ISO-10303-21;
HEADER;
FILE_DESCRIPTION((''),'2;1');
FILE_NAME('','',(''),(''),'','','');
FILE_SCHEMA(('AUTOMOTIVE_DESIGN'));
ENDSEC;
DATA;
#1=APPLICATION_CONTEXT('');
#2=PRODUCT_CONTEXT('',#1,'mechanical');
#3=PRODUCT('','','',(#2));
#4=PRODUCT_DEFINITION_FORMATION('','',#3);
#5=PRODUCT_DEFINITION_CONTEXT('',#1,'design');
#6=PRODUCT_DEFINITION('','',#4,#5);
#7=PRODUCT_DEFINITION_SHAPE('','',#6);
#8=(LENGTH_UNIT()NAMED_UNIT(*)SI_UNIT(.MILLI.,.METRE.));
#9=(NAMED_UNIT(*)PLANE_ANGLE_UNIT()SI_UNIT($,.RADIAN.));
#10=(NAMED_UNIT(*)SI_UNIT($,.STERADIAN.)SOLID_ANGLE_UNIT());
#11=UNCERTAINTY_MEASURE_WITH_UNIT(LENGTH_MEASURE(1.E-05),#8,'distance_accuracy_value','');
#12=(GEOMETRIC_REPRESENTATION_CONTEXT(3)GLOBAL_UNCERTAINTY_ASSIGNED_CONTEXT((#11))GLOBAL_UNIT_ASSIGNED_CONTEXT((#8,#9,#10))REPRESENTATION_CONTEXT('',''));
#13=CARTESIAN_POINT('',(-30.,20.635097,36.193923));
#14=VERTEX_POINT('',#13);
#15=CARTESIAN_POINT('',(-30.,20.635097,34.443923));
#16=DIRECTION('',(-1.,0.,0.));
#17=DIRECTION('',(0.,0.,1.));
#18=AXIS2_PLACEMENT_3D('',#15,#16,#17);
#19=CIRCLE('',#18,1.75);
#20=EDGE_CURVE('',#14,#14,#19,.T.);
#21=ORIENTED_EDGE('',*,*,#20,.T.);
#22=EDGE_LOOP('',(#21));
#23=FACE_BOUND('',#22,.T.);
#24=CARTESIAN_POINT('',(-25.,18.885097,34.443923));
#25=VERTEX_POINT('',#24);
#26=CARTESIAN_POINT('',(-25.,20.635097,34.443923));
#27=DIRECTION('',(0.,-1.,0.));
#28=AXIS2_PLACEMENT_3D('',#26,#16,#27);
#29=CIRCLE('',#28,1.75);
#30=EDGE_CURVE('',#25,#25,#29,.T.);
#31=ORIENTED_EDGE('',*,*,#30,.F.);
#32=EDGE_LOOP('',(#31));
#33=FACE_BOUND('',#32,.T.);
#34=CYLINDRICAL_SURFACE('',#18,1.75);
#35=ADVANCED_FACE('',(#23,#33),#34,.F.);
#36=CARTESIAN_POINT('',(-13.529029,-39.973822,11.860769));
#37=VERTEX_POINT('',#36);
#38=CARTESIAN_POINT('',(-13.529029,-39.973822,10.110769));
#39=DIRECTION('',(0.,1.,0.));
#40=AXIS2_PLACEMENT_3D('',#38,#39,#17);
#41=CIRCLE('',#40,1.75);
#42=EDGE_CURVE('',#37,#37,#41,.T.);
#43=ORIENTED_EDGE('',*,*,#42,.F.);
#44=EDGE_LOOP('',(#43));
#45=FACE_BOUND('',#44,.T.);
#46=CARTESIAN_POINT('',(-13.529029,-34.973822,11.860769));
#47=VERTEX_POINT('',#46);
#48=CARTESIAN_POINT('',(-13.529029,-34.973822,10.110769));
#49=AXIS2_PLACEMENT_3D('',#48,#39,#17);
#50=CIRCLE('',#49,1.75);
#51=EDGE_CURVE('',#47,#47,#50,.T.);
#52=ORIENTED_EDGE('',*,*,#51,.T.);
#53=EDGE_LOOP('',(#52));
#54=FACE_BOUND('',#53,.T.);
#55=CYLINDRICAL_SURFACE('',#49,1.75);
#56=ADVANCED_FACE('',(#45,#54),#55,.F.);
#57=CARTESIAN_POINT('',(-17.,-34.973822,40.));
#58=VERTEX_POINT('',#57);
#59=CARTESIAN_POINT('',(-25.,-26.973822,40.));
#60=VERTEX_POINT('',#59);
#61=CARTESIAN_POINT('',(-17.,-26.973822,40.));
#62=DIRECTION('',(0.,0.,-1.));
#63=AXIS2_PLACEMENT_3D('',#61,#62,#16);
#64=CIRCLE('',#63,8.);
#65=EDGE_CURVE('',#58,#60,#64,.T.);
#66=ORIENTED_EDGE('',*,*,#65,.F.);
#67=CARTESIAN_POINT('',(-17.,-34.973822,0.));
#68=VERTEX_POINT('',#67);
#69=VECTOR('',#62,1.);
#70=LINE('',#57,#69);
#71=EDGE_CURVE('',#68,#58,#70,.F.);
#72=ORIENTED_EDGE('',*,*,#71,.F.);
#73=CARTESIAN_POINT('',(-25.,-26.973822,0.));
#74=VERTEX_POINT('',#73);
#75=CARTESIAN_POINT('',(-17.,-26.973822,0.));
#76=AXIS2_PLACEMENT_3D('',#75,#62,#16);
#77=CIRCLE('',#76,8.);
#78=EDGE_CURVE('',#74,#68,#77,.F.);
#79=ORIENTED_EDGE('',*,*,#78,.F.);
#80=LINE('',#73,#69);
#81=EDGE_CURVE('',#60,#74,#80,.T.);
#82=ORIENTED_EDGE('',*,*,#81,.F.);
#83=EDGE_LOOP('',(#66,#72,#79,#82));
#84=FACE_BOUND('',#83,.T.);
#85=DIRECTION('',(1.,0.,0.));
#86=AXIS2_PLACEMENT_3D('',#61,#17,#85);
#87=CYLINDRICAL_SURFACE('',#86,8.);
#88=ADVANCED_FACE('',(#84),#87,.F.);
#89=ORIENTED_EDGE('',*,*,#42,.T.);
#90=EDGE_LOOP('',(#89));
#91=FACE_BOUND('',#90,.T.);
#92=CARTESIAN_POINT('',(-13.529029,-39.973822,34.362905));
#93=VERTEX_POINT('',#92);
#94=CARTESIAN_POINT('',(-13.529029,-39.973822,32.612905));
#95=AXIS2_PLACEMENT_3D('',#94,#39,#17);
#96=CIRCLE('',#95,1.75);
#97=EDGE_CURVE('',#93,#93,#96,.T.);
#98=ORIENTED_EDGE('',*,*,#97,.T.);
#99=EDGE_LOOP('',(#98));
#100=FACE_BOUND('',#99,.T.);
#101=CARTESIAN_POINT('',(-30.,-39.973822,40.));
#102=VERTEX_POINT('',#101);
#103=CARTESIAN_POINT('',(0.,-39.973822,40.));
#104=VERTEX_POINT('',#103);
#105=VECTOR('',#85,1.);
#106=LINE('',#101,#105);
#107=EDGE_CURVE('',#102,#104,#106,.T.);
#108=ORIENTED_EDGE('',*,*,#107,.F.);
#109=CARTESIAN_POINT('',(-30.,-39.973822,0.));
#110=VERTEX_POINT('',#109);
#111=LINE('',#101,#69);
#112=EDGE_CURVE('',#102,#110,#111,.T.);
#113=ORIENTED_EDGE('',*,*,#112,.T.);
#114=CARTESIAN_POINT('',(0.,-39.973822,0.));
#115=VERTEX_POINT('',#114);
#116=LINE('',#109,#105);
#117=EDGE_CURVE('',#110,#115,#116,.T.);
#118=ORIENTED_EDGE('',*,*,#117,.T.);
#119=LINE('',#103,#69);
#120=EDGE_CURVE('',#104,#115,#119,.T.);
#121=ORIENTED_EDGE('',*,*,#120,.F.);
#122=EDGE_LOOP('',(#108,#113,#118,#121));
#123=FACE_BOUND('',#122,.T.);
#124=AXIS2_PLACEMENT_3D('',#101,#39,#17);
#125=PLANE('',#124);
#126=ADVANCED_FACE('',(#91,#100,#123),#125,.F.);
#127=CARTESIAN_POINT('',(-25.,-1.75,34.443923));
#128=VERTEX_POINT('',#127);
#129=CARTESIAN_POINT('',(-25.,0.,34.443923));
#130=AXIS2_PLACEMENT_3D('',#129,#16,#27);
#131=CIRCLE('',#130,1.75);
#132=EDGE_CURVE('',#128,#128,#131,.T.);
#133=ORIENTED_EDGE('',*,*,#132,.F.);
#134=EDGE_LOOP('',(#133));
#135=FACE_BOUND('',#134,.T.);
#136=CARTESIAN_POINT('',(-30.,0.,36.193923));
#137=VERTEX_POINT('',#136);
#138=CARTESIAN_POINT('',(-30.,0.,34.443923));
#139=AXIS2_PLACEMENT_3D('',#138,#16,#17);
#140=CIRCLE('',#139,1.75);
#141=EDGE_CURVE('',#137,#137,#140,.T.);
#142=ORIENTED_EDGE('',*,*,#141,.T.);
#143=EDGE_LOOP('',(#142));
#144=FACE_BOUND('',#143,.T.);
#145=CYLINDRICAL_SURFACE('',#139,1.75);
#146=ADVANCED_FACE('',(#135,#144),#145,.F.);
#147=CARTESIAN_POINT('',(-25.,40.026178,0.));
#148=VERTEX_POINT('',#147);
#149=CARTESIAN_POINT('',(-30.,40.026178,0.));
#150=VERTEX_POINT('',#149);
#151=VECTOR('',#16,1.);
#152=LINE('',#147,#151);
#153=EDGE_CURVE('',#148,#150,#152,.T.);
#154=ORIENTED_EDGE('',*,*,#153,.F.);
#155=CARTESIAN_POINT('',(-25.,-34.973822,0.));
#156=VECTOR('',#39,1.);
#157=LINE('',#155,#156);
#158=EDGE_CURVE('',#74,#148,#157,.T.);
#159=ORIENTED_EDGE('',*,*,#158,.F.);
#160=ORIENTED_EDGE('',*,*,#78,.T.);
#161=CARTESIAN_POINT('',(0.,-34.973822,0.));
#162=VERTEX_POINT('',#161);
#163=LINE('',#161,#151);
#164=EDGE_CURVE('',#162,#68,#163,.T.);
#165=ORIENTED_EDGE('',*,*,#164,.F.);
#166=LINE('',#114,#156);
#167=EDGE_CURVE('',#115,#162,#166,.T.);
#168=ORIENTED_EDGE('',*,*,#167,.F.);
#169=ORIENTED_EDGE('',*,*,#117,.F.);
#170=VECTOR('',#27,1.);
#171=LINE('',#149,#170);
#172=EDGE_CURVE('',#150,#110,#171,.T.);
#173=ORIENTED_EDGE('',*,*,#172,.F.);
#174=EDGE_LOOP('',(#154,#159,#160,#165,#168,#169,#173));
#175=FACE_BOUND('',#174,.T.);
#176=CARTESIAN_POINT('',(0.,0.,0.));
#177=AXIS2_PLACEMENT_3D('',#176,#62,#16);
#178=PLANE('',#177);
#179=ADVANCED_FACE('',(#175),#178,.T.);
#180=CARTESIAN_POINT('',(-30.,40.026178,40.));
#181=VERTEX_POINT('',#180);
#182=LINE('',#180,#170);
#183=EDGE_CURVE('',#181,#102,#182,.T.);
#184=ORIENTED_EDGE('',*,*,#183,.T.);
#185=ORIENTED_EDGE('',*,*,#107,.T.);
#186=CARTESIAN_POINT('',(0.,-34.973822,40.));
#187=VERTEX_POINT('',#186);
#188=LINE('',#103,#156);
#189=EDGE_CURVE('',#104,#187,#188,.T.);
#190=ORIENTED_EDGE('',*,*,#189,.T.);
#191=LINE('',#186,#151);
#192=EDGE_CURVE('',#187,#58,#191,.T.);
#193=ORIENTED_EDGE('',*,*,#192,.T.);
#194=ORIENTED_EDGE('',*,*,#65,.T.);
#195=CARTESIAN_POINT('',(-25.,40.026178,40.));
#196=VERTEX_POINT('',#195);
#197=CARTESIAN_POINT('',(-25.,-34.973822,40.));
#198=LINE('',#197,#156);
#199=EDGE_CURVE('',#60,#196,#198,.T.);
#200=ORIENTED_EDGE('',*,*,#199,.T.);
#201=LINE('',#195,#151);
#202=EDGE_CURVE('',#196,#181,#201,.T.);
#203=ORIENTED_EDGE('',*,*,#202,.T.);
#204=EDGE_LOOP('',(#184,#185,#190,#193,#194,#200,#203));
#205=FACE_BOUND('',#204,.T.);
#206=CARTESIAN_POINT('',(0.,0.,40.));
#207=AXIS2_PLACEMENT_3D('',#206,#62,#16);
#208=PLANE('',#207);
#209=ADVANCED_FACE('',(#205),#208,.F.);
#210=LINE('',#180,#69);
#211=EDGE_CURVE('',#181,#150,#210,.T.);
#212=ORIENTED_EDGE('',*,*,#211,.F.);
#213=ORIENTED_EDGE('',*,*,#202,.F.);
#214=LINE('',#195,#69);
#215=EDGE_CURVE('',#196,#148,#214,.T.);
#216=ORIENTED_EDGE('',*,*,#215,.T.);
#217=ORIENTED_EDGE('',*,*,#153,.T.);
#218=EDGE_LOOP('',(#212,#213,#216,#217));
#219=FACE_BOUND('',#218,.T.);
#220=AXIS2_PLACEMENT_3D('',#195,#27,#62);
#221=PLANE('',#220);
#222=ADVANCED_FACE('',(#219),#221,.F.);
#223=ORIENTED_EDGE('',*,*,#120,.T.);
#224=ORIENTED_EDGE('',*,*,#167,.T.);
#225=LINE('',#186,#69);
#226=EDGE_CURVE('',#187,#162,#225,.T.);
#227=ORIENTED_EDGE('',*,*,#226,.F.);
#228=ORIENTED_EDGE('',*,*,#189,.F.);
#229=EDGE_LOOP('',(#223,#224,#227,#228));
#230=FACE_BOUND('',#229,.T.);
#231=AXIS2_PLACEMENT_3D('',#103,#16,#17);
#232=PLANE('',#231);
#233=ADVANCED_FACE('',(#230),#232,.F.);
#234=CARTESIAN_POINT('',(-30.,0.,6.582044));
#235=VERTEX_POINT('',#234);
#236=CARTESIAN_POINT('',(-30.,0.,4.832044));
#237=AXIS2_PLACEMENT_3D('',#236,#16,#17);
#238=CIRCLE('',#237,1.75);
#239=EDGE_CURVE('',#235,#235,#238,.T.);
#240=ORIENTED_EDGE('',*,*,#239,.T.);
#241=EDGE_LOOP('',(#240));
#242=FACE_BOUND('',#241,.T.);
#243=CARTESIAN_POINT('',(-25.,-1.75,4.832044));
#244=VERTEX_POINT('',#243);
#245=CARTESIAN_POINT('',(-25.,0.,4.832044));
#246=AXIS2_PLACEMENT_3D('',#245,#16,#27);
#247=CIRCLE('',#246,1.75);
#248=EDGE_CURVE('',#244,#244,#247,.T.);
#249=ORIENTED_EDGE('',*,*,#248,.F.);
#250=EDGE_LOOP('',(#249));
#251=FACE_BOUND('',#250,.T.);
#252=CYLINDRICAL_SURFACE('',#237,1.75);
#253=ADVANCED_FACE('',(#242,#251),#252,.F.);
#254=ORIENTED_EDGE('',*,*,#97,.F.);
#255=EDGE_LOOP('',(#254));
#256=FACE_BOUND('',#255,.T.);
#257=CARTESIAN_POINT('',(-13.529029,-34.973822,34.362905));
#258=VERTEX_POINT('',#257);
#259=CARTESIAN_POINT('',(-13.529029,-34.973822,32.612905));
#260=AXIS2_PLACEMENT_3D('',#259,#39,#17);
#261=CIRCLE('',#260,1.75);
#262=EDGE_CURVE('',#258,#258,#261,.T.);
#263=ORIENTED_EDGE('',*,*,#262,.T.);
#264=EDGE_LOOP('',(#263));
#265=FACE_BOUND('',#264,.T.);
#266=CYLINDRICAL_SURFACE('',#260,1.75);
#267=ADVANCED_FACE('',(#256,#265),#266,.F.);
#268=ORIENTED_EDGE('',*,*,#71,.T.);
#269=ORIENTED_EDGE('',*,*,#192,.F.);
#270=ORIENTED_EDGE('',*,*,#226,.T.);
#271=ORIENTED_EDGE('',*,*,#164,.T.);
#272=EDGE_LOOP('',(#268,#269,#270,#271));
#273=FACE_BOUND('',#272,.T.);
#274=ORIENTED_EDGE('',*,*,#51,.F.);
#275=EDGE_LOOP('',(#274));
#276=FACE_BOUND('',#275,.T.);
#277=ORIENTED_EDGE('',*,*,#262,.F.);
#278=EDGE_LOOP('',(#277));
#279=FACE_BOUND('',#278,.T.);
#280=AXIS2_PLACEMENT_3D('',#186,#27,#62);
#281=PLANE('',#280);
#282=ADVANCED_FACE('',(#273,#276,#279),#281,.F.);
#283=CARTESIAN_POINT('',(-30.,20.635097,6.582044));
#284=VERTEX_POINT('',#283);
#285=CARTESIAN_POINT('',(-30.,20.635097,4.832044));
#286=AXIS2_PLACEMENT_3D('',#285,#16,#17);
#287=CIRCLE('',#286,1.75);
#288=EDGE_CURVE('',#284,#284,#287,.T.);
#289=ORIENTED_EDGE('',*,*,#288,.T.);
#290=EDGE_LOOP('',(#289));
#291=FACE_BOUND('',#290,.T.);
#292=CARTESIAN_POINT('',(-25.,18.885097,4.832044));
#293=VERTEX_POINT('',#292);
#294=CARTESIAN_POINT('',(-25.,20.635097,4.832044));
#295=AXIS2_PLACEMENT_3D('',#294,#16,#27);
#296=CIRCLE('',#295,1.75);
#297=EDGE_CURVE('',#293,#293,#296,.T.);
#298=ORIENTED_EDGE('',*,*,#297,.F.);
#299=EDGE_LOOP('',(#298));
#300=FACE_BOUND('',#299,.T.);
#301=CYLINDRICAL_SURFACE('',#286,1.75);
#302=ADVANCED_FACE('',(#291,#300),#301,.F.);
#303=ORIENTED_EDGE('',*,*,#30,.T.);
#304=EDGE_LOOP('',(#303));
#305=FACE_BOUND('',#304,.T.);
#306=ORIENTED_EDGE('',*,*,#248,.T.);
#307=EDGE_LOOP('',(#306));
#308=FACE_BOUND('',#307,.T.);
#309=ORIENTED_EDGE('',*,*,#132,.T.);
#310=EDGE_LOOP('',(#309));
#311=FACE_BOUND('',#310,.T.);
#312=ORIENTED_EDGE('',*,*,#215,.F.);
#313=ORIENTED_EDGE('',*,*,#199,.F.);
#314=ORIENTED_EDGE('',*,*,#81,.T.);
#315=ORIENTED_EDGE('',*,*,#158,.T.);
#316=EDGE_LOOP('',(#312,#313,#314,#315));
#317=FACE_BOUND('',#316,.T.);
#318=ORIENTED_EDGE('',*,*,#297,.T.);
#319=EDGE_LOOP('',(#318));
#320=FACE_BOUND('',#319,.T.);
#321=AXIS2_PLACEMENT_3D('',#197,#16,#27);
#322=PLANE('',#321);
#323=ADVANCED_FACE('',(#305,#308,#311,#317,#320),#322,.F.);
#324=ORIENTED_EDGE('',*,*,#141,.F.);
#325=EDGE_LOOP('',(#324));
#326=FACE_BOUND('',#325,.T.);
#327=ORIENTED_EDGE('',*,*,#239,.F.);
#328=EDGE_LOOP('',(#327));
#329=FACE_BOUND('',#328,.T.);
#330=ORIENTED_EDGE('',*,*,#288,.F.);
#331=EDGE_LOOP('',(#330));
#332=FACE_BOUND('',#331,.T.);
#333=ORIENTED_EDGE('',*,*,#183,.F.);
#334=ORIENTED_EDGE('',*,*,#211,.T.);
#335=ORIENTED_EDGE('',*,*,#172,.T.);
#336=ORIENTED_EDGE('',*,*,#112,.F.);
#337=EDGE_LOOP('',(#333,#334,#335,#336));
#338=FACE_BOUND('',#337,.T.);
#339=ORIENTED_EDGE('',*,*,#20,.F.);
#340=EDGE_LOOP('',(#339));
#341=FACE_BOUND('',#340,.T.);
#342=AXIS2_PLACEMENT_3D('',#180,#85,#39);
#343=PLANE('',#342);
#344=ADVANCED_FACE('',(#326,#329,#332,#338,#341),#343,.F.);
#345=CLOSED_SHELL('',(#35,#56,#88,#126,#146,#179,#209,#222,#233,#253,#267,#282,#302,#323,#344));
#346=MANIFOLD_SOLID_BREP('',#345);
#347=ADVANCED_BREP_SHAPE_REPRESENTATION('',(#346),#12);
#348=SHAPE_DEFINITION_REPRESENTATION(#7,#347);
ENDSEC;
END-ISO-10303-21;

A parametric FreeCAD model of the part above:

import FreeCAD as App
import Part
import Sketcher

V = App.Vector


def edges_at(feature, points):
    """Names of the edges that pass closest to the given points."""
    edges = feature.Shape.Edges
    near = lambda p: min(range(len(edges)), key=lambda i: edges[i].distToShape(Part.Vertex(*p))[0])
    return sorted({f"Edge{near(p) + 1}" for p in points})

doc = App.newDocument("Part")
body = doc.addObject("PartDesign::Body", "Body")

sketch1 = body.newObject("Sketcher::SketchObject", "Sketch")
sketch1.AttachmentSupport = (doc.getObject("XY_Plane"), [""])
sketch1.MapMode = "FlatFace"
sketch1.addGeometry([
    Part.LineSegment(V(-30, 40, 0), V(-30, -40, 0)),
    Part.LineSegment(V(-30, -40, 0), V(0, -40, 0)),
    Part.LineSegment(V(0, -40, 0), V(0, -35, 0)),
    Part.LineSegment(V(0, -35, 0), V(-25, -35, 0)),
    Part.LineSegment(V(-25, -35, 0), V(-25, 40, 0)),
    Part.LineSegment(V(-25, 40, 0), V(-30, 40, 0)),
], False)
sketch1.addConstraint([
    Sketcher.Constraint("Coincident", 0, 2, 1, 1),
    Sketcher.Constraint("Coincident", 1, 2, 2, 1),
    Sketcher.Constraint("Coincident", 2, 2, 3, 1),
    Sketcher.Constraint("Coincident", 3, 2, 4, 1),
    Sketcher.Constraint("Coincident", 4, 2, 5, 1),
    Sketcher.Constraint("Coincident", 5, 2, 0, 1),
    Sketcher.Constraint("Vertical", 0),
    Sketcher.Constraint("Horizontal", 1),
    Sketcher.Constraint("Vertical", 2),
    Sketcher.Constraint("Horizontal", 3),
    Sketcher.Constraint("Vertical", 4),
    Sketcher.Constraint("Horizontal", 5),
    Sketcher.Constraint("PointOnObject", 1, 2, -2),
    Sketcher.Constraint("Equal", 5, 2),
    Sketcher.Constraint("DistanceX", 1, 1, 1, 2, 30.0),
    Sketcher.Constraint("DistanceX", 3, 2, 3, 1, 25.0),
    Sketcher.Constraint("DistanceY", 0, 2, 0, 1, 80.0),
    Sketcher.Constraint("DistanceY", 0, 2, -1, 1, 39.973822),
])
pad1 = body.newObject("PartDesign::Pad", "Pad")
pad1.Profile = sketch1
pad1.Length = 40

sketch2 = body.newObject("Sketcher::SketchObject", "Sketch001")
sketch2.AttachmentSupport = (doc.getObject("XZ_Plane"), [""])
sketch2.MapMode = "FlatFace"
sketch2.AttachmentOffset = App.Placement(V(0, 0, 34.973822), App.Rotation())
sketch2.addGeometry([
    Part.Circle(V(-13.5, 32.6, 0), V(0, 0, 1), 1.8),
    Part.Circle(V(-13.5, 10.1, 0), V(0, 0, 1), 1.8),
], False)
sketch2.addConstraint([
    Sketcher.Constraint("Equal", 0, 1),
    Sketcher.Constraint("Vertical", 0, 3, 1, 3),
    Sketcher.Constraint("Diameter", 0, 3.5),
    Sketcher.Constraint("DistanceX", 0, 3, -1, 1, 13.529029),
    Sketcher.Constraint("DistanceY", -1, 1, 1, 3, 10.110769),
    Sketcher.Constraint("DistanceY", -1, 1, 0, 3, 32.612905),
])
doc.recompute()
hole = body.newObject("PartDesign::Hole", "Hole")
hole.Profile = sketch2
hole.ThreadType = "None"
hole.Diameter = 3.5
hole.DepthType = "Dimension"
hole.Depth = 10
hole.DrillPoint = "Angled"
hole.DrillPointAngle = 118
hole.Reversed = True

sketch3 = body.newObject("Sketcher::SketchObject", "Sketch002")
sketch3.AttachmentSupport = (doc.getObject("YZ_Plane"), [""])
sketch3.MapMode = "FlatFace"
sketch3.AttachmentOffset = App.Placement(V(0, 0, -30), App.Rotation())
sketch3.addGeometry([
    Part.Circle(V(20.6, 4.8, 0), V(0, 0, 1), 1.8),
    Part.Circle(V(20.6, 34.4, 0), V(0, 0, 1), 1.8),
    Part.Circle(V(0, 34.4, 0), V(0, 0, 1), 1.8),
    Part.Circle(V(0, 4.8, 0), V(0, 0, 1), 1.8),
], False)
sketch3.addConstraint([
    Sketcher.Constraint("Equal", 0, 1),
    Sketcher.Constraint("Equal", 1, 2),
    Sketcher.Constraint("Equal", 2, 3),
    Sketcher.Constraint("PointOnObject", 2, 3, -2),
    Sketcher.Constraint("PointOnObject", 3, 3, -2),
    Sketcher.Constraint("Horizontal", 1, 3, 2, 3),
    Sketcher.Constraint("Horizontal", 0, 3, 3, 3),
    Sketcher.Constraint("Vertical", 0, 3, 1, 3),
    Sketcher.Constraint("Diameter", 0, 3.5),
    Sketcher.Constraint("DistanceY", 0, 3, 1, 3, 29.611879),
    Sketcher.Constraint("DistanceX", -1, 1, 0, 3, 20.635097),
    Sketcher.Constraint("DistanceY", -1, 1, 0, 3, 4.832044),
])
doc.recompute()
hole2 = body.newObject("PartDesign::Hole", "Hole001")
hole2.Profile = sketch3
hole2.ThreadType = "None"
hole2.Diameter = 3.5
hole2.DepthType = "Dimension"
hole2.Depth = 10
hole2.DrillPoint = "Angled"
hole2.DrillPointAngle = 118
hole2.Reversed = True
doc.recompute()

fillet = body.newObject("PartDesign::Fillet", "Fillet")
fillet.Base = (hole2, edges_at(hole2, [(-25, -34.974, 20)]))
fillet.Radius = 8

doc.recompute()
